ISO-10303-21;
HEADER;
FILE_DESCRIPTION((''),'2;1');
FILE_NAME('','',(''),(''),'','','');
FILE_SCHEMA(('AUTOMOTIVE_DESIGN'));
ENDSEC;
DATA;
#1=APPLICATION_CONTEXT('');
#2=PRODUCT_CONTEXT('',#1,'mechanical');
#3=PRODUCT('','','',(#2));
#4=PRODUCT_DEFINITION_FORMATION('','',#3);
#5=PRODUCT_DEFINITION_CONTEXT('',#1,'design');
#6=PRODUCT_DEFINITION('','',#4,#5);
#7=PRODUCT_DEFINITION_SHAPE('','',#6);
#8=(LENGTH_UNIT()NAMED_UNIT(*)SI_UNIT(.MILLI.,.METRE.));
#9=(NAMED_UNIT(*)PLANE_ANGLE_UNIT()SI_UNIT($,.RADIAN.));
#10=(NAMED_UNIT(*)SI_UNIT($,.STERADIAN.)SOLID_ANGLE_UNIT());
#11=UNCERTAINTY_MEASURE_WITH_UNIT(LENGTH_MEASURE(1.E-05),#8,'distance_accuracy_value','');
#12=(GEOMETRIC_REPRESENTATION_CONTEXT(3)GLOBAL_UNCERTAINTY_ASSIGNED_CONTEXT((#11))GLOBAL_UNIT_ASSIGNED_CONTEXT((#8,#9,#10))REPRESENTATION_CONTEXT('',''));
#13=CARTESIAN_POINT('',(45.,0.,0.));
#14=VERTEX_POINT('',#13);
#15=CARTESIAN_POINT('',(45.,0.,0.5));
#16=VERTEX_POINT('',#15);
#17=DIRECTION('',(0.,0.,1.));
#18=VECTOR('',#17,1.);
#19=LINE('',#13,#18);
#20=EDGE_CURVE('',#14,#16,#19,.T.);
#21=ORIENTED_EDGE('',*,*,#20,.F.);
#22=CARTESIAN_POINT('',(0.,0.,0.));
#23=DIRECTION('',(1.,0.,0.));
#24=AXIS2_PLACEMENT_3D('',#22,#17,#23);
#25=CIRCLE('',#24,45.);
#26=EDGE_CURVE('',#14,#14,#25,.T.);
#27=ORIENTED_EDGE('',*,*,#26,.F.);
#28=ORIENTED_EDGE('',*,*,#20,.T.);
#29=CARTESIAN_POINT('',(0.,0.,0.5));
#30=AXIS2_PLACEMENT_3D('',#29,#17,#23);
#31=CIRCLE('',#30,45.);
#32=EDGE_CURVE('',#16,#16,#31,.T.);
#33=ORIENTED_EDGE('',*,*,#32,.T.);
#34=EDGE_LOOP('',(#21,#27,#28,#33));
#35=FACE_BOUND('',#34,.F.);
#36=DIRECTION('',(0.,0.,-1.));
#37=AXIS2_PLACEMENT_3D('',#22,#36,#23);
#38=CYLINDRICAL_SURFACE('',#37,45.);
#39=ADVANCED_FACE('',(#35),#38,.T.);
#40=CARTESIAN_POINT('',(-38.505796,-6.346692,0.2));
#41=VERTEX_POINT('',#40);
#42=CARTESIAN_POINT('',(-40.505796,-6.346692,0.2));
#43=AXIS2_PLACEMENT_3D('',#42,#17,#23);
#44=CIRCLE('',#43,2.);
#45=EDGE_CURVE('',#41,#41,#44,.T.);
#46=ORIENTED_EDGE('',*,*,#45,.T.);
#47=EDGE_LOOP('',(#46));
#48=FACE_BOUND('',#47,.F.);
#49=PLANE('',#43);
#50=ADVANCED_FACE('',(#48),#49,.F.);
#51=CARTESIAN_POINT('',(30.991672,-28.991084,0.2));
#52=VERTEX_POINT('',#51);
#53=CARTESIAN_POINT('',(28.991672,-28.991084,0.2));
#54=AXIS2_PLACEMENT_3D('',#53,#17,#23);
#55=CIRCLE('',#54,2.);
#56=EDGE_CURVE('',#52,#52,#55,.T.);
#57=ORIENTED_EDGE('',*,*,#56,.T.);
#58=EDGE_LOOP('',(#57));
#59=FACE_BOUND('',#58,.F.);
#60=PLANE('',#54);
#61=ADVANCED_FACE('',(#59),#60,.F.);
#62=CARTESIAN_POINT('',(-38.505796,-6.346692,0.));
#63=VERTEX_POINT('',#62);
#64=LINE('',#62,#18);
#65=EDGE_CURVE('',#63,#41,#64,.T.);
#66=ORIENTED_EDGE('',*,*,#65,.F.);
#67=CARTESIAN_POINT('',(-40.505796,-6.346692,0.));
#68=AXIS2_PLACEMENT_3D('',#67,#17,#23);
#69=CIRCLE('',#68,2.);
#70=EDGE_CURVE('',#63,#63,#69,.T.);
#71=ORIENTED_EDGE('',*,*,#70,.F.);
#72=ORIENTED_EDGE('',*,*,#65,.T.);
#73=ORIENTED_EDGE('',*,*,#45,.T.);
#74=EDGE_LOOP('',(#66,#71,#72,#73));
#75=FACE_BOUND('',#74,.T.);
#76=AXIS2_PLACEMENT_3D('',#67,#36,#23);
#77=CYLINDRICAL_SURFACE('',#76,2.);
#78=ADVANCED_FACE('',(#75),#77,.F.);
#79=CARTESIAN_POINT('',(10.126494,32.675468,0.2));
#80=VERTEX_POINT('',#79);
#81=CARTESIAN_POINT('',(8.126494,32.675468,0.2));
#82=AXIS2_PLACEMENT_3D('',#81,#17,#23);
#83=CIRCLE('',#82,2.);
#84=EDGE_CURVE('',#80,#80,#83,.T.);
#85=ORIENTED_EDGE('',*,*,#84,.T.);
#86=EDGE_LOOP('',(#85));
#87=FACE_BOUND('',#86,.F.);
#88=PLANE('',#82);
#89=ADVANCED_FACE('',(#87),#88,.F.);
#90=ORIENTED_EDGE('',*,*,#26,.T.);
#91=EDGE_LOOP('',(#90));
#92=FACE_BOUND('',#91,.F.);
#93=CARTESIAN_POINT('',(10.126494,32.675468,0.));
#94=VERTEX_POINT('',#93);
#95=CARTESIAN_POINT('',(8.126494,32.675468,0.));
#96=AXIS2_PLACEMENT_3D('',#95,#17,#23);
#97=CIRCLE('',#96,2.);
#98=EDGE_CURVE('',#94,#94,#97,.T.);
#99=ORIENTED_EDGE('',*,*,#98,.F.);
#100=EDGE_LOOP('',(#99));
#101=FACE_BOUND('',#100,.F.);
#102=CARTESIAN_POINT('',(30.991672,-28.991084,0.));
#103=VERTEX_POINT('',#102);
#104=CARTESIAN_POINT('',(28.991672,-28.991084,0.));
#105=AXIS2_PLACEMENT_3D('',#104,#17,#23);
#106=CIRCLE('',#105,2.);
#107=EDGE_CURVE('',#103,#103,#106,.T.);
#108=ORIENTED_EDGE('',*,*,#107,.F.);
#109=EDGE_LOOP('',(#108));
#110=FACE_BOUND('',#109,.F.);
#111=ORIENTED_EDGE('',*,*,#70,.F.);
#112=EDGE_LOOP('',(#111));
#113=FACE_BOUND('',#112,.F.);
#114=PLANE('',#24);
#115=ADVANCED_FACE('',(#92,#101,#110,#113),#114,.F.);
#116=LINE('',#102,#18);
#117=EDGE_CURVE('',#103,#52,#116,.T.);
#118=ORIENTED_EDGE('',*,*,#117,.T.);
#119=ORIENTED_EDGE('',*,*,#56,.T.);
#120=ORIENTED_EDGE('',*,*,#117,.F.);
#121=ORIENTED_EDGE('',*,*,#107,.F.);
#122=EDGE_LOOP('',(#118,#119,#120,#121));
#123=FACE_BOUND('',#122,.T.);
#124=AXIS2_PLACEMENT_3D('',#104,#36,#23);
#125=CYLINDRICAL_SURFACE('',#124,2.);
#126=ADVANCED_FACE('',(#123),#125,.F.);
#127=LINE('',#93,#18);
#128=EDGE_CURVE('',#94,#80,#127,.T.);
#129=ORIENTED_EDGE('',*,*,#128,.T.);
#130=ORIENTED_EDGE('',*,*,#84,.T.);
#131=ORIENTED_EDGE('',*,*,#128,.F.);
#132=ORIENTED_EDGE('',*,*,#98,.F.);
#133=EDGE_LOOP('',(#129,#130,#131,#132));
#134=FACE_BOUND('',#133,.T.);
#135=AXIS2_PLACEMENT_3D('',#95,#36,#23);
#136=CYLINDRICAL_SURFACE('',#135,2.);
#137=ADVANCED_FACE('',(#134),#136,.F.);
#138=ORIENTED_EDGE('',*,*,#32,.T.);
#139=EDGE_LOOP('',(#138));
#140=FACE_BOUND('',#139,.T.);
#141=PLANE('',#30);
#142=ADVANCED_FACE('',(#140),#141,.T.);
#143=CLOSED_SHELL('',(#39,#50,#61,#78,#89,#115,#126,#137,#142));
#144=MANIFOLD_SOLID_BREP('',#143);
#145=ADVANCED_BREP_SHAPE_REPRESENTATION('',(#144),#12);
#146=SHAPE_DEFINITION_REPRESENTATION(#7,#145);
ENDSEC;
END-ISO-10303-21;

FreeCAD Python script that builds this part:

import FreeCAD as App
import Part
import Sketcher
Q = App.Units.Quantity

doc = App.newDocument("Part")
body = doc.addObject("PartDesign::Body", "Body")

# Sketch on XY plane
sketch1 = body.newObject("Sketcher::SketchObject", "Sketch")
sketch1.AttachmentSupport = (doc.getObject("XY_Plane"), [""])
sketch1.MapMode = "FlatFace"
sketch1.addGeometry(Part.Circle(App.Vector(0, 0, 0), App.Vector(0, 0, 1), 45), False)
sketch1.addConstraint([
    Sketcher.Constraint("Coincident", 0, 3, -1, 1),
    Sketcher.Constraint("Diameter", 0, Q("90 mm")),
])
pad1 = body.newObject("PartDesign::Pad", "Pad")
pad1.Profile = sketch1
pad1.Length = 0.5

# Sketch on XY plane
sketch2 = body.newObject("Sketcher::SketchObject", "Sketch001")
sketch2.AttachmentSupport = (doc.getObject("XY_Plane"), [""])
sketch2.MapMode = "FlatFace"
sketch2.addGeometry([
    Part.Circle(App.Vector(-40.5, -6.3, 0), App.Vector(0, 0, 1), 2),
    Part.Circle(App.Vector(8.1, 32.7, 0), App.Vector(0, 0, 1), 2),
    Part.Circle(App.Vector(29, -29, 0), App.Vector(0, 0, 1), 2),
], False)
sketch2.addConstraint([
    Sketcher.Constraint("Equal", 0, 1),
    Sketcher.Constraint("Equal", 1, 2),
    Sketcher.Constraint("Diameter", 0, Q("4 mm")),
    Sketcher.Constraint("DistanceY", -1, 1, 1, 3, Q("32.675468 mm")),
    Sketcher.Constraint("DistanceX", 0, 3, 1, 3, Q("48.63229 mm")),
    Sketcher.Constraint("DistanceY", 0, 3, 1, 3, Q("39.02216 mm")),
    Sketcher.Constraint("DistanceX", 1, 3, 2, 3, Q("20.865178 mm")),
    Sketcher.Constraint("DistanceY", 2, 3, 0, 3, Q("22.644392 mm")),
    Sketcher.Constraint("DistanceX", 0, 3, -1, 1, Q("40.505796 mm")),
])
pocket1 = body.newObject("PartDesign::Pocket", "Pocket")
pocket1.Profile = sketch2
pocket1.Length = 0.2
pocket1.Reversed = True

doc.recompute()
